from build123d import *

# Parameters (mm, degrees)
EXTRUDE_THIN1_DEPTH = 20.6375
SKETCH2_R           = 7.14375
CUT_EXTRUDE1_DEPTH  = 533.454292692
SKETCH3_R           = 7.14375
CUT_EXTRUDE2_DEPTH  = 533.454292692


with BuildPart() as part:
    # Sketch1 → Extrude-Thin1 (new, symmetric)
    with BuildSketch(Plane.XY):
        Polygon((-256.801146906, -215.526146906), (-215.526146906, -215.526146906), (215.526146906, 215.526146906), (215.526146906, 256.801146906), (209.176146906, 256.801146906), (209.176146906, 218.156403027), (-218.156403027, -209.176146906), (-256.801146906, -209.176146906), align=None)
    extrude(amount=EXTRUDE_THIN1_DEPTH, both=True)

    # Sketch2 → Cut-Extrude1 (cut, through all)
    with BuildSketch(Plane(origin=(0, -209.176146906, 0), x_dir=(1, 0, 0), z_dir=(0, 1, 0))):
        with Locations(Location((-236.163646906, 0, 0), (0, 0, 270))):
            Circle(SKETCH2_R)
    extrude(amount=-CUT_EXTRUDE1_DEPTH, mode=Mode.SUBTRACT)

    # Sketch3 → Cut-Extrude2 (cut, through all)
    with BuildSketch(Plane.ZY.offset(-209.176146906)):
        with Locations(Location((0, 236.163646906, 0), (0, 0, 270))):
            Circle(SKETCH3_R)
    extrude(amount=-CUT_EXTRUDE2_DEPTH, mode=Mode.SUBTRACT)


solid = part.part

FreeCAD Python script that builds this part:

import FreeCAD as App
import Part
import Sketcher
from FreeCAD import Vector
Q = App.Units.Quantity


def add_polygon(sketch, points):
    """Adds a closed chain of lines whose ends are joined by coincident constraints."""
    first, n = sketch.GeometryCount, len(points)
    for a, b in zip(points, points[1:] + points[:1]):
        sketch.addGeometry(Part.LineSegment(App.Vector(*a, 0), App.Vector(*b, 0)), False)
    for i in range(n):
        sketch.addConstraint(Sketcher.Constraint("Coincident", first + i, 2, first + (i + 1) % n, 1))

doc = App.newDocument("Part")
body = doc.addObject("PartDesign::Body", "Body")

sketch1 = body.newObject("Sketcher::SketchObject", "Sketch")
sketch1.AttachmentSupport = (doc.getObject("XY_Plane"), [""])
sketch1.MapMode = "FlatFace"
add_polygon(sketch1, [(-257, -216), (-216, -216), (216, 216), (216, 257), (209, 257), (209, 218), (-218, -209), (-257, -209)])
sketch1.addConstraint(Sketcher.Constraint("Horizontal", 0))
sketch1.addConstraint(Sketcher.Constraint("Vertical", 2))
sketch1.addConstraint(Sketcher.Constraint("Horizontal", 3))
sketch1.addConstraint(Sketcher.Constraint("Vertical", 4))
sketch1.addConstraint(Sketcher.Constraint("Horizontal", 6))
sketch1.addConstraint(Sketcher.Constraint("Vertical", 7))
sketch1.addConstraint(Sketcher.Constraint("Symmetric", 0, 2, 1, 2, -1, 1))
sketch1.addConstraint(Sketcher.Constraint("Parallel", 1, 5))
sketch1.addConstraint(Sketcher.Constraint("Equal", 0, 2))
sketch1.addConstraint(Sketcher.Constraint("Equal", 6, 4))
sketch1.addConstraint(Sketcher.Constraint("Equal", 3, 7))
sketch1.addConstraint(Sketcher.Constraint("Distance", 1, Q("24 in")))
sketch1.addConstraint(Sketcher.Constraint("DistanceX", 3, 2, 3, 1, Q("0.25 in")))
sketch1.addConstraint(Sketcher.Constraint("DistanceX", 0, 1, 0, 2, Q("1.625 in")))
sketch1.addConstraint(Sketcher.Constraint("DistanceX", 6, 2, 6, 1, Q("38.644744 mm")))
pad1 = body.newObject("PartDesign::Pad", "Pad")
pad1.Profile = sketch1
pad1.Length = Q("1.625 in")
pad1.Midplane = True

sketch2 = body.newObject("Sketcher::SketchObject", "Sketch001")
sketch2.AttachmentSupport = (doc.getObject("XZ_Plane"), [""])
sketch2.MapMode = "FlatFace"
sketch2.AttachmentOffset = App.Placement(Vector(0, 0, 209.176147), App.Rotation())
sketch2.addGeometry(Part.Circle(Vector(-236, 0, 0), Vector(0, 0, 1), 7), False)
sketch2.addConstraint(Sketcher.Constraint("PointOnObject", 0, 3, -1))
sketch2.addConstraint(Sketcher.Constraint("Diameter", 0, Q("0.5625 in")))
sketch2.addConstraint(Sketcher.Constraint("DistanceX", 0, 3, -1, 1, Q("236.163647 mm")))
pocket1 = body.newObject("PartDesign::Pocket", "Pocket")
pocket1.Profile = sketch2
pocket1.Type = "ThroughAll"
pocket1.Reversed = True

sketch3 = body.newObject("Sketcher::SketchObject", "Sketch002")
sketch3.AttachmentSupport = (doc.getObject("YZ_Plane"), [""])
sketch3.MapMode = "FlatFace"
sketch3.AttachmentOffset = App.Placement(Vector(0, 0, 209.176147), App.Rotation())
sketch3.addGeometry(Part.Circle(Vector(236, 0, 0), Vector(0, 0, 1), 7), False)
sketch3.addConstraint(Sketcher.Constraint("PointOnObject", 0, 3, -1))
sketch3.addConstraint(Sketcher.Constraint("Diameter", 0, Q("0.5625 in")))
sketch3.addConstraint(Sketcher.Constraint("DistanceX", -1, 1, 0, 3, Q("236.163647 mm")))
pocket2 = body.newObject("PartDesign::Pocket", "Pocket001")
pocket2.Profile = sketch3
pocket2.Type = "ThroughAll"
pocket2.Reversed = True

doc.recompute()
